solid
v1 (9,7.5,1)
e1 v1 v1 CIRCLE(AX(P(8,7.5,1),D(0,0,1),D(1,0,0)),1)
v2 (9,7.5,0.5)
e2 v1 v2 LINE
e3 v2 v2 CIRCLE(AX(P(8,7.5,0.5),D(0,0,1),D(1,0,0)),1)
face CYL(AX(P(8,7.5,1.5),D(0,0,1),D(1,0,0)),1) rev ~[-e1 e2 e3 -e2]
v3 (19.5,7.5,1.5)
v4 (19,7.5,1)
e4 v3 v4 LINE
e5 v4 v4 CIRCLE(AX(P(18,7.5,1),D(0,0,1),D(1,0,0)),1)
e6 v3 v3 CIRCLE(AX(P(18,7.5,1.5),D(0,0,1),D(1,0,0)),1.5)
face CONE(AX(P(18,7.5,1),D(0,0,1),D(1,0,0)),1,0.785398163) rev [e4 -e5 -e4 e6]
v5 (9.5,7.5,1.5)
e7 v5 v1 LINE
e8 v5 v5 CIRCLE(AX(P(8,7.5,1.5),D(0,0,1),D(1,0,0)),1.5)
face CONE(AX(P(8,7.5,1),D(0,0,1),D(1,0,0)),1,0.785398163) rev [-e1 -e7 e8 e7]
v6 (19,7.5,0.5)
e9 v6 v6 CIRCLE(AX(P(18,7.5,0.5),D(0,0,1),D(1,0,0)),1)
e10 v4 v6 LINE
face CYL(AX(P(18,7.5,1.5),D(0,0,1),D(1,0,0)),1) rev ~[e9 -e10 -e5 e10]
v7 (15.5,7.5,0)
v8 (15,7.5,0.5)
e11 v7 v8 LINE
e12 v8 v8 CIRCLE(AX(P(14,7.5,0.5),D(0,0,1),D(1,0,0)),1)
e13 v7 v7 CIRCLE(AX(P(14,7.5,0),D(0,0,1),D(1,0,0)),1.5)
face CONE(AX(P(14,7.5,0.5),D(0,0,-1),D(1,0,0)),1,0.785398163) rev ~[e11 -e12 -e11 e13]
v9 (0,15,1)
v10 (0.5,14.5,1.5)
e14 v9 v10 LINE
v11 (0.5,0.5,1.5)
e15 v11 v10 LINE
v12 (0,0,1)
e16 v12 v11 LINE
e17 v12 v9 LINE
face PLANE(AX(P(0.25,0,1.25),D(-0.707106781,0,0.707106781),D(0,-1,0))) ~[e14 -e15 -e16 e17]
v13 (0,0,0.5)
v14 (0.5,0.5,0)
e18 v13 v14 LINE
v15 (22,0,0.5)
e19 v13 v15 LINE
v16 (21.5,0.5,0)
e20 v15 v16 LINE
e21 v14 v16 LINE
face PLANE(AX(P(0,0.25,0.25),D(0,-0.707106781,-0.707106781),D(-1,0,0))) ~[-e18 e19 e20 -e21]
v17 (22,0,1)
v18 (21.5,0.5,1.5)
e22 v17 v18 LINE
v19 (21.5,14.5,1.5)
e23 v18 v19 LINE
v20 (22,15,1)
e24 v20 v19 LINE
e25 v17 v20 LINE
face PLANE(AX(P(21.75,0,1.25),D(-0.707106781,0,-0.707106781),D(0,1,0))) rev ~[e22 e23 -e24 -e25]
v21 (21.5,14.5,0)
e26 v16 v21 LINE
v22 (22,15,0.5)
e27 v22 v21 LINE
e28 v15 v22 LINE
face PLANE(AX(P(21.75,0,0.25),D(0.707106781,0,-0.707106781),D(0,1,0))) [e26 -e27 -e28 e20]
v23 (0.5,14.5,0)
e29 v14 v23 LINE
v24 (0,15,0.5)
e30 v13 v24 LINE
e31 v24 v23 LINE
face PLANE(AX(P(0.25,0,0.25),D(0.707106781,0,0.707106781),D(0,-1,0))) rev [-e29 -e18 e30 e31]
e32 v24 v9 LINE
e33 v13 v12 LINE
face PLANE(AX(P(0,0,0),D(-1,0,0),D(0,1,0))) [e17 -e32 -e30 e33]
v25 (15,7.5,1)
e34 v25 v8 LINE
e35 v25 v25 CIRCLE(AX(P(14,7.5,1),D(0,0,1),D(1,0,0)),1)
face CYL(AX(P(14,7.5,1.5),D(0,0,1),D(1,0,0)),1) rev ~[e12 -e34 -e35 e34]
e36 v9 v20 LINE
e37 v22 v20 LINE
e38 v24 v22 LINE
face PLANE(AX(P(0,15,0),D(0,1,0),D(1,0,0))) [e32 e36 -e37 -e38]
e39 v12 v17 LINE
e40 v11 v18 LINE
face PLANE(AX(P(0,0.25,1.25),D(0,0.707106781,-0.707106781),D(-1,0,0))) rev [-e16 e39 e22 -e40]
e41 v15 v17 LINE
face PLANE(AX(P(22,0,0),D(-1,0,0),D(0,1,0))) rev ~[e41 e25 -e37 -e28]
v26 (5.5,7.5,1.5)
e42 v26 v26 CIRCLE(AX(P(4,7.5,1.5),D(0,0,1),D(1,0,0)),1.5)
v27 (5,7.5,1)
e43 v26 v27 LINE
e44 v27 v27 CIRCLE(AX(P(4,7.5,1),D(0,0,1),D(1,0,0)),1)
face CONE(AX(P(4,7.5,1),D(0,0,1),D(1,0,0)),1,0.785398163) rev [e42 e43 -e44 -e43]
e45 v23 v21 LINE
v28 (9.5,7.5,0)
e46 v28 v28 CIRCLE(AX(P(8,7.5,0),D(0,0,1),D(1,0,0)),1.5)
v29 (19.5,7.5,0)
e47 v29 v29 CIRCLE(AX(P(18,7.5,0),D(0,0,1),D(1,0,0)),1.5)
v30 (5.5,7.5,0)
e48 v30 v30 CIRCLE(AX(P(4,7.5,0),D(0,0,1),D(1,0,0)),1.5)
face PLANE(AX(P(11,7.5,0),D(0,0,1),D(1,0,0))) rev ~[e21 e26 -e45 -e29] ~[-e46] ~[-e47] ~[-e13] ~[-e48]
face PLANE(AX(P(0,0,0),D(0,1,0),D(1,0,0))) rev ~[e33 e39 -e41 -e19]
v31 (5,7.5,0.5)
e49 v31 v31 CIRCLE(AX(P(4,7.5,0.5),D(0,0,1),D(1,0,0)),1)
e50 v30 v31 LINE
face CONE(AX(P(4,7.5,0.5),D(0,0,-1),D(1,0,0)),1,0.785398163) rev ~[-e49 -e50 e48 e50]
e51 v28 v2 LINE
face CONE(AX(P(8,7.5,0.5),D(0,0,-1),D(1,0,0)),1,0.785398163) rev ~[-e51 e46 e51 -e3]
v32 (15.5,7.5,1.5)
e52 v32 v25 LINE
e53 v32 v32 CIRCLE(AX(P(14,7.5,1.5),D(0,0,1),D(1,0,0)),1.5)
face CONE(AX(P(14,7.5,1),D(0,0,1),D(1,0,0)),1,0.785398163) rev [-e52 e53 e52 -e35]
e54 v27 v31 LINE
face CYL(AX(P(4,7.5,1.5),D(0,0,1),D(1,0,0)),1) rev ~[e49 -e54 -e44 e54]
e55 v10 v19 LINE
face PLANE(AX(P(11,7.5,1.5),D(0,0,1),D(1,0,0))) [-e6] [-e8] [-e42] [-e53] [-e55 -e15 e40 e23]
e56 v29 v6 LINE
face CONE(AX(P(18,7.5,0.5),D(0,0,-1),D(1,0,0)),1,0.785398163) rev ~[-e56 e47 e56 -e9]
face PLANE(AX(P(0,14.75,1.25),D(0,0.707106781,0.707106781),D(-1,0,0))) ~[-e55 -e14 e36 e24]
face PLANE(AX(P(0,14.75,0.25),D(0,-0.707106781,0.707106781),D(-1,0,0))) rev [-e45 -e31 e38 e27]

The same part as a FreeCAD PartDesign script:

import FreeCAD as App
import Part
import Sketcher

V = App.Vector
Q = App.Units.Quantity


def edges_at(feature, points):
    """Names of the edges that pass closest to the given points."""
    edges = feature.Shape.Edges
    near = lambda p: min(range(len(edges)), key=lambda i: edges[i].distToShape(Part.Vertex(*p))[0])
    return sorted({f"Edge{near(p) + 1}" for p in points})


def add_polygon(sketch, points):
    """Adds a closed chain of lines whose ends are joined by coincident constraints."""
    first, n = sketch.GeometryCount, len(points)
    for a, b in zip(points, points[1:] + points[:1]):
        sketch.addGeometry(Part.LineSegment(App.Vector(*a, 0), App.Vector(*b, 0)), False)
    for i in range(n):
        sketch.addConstraint(Sketcher.Constraint("Coincident", first + i, 2, first + (i + 1) % n, 1))

doc = App.newDocument("Part")
body = doc.addObject("PartDesign::Body", "Body")

# Sketch on XY plane
sketch1 = body.newObject("Sketcher::SketchObject", "Sketch")
sketch1.AttachmentSupport = (doc.getObject("XY_Plane"), [""])
sketch1.MapMode = "FlatFace"
add_polygon(sketch1, [(0, 15), (0, 0), (22, 0), (22, 15)])  # lines 0-3
sketch1.addConstraint(Sketcher.Constraint("Vertical", 0))
sketch1.addConstraint(Sketcher.Constraint("Horizontal", 1))
sketch1.addConstraint(Sketcher.Constraint("Vertical", 2))
sketch1.addConstraint(Sketcher.Constraint("Horizontal", 3))
sketch1.addConstraint(Sketcher.Constraint("Coincident", 0, 2, -1, 1))
sketch1.addConstraint(Sketcher.Constraint("DistanceX", 1, 1, 1, 2, Q("22 mm")))
sketch1.addConstraint(Sketcher.Constraint("DistanceY", 0, 2, 0, 1, Q("15 mm")))
pad1 = body.newObject("PartDesign::Pad", "Pad")
pad1.Profile = sketch1
pad1.Length = 1.5

# Sketch on XY plane
sketch2 = body.newObject("Sketcher::SketchObject", "Sketch001")
sketch2.AttachmentSupport = (doc.getObject("XY_Plane"), [""])
sketch2.MapMode = "FlatFace"
sketch2.AttachmentOffset = App.Placement(V(0, 0, 1.5), App.Rotation())
sketch2.addGeometry(Part.Circle(V(4, 7.5, 0), V(0, 0, 1), 1), False)
sketch2.addGeometry(Part.Circle(V(8, 7.5, 0), V(0, 0, 1), 1), False)
sketch2.addGeometry(Part.Circle(V(14, 7.5, 0), V(0, 0, 1), 1), False)
sketch2.addGeometry(Part.Circle(V(18, 7.5, 0), V(0, 0, 1), 1), False)
sketch2.addConstraint(Sketcher.Constraint("Equal", 0, 1))
sketch2.addConstraint(Sketcher.Constraint("Equal", 1, 2))
sketch2.addConstraint(Sketcher.Constraint("Equal", 2, 3))
sketch2.addConstraint(Sketcher.Constraint("Horizontal", 0, 3, 1, 3))
sketch2.addConstraint(Sketcher.Constraint("Horizontal", 1, 3, 2, 3))
sketch2.addConstraint(Sketcher.Constraint("Horizontal", 2, 3, 3, 3))
sketch2.addConstraint(Sketcher.Constraint("Diameter", 0, Q("2 mm")))
sketch2.addConstraint(Sketcher.Constraint("DistanceX", -1, 1, 0, 3, Q("4 mm")))
sketch2.addConstraint(Sketcher.Constraint("DistanceX", -1, 1, 1, 3, Q("8 mm")))
sketch2.addConstraint(Sketcher.Constraint("DistanceX", -1, 1, 2, 3, Q("14 mm")))
sketch2.addConstraint(Sketcher.Constraint("DistanceX", -1, 1, 3, 3, Q("18 mm")))
sketch2.addConstraint(Sketcher.Constraint("DistanceY", -1, 1, 0, 3, Q("7.5 mm")))
pocket1 = body.newObject("PartDesign::Pocket", "Pocket")
pocket1.Profile = sketch2
pocket1.Type = "ThroughAll"
doc.recompute()

chamfer = body.newObject("PartDesign::Chamfer", "Chamfer")
chamfer.Base = (pocket1, edges_at(pocket1, [
    (0, 7.5, 1.5),
    (11, 15, 1.5),
    (11, 0, 1.5),
    (22, 7.5, 1.5),
    (3, 7.5, 1.5),
    (7, 7.5, 1.5),
    (13, 7.5, 1.5),
    (17, 7.5, 1.5),
    (0, 7.5, 0),
    (11, 15, 0),
    (11, 0, 0),
    (22, 7.5, 0),
    (3, 7.5, 0),
    (7, 7.5, 0),
    (13, 7.5, 0),
    (17, 7.5, 0),
]))
chamfer.Size = 0.5

doc.recompute()
